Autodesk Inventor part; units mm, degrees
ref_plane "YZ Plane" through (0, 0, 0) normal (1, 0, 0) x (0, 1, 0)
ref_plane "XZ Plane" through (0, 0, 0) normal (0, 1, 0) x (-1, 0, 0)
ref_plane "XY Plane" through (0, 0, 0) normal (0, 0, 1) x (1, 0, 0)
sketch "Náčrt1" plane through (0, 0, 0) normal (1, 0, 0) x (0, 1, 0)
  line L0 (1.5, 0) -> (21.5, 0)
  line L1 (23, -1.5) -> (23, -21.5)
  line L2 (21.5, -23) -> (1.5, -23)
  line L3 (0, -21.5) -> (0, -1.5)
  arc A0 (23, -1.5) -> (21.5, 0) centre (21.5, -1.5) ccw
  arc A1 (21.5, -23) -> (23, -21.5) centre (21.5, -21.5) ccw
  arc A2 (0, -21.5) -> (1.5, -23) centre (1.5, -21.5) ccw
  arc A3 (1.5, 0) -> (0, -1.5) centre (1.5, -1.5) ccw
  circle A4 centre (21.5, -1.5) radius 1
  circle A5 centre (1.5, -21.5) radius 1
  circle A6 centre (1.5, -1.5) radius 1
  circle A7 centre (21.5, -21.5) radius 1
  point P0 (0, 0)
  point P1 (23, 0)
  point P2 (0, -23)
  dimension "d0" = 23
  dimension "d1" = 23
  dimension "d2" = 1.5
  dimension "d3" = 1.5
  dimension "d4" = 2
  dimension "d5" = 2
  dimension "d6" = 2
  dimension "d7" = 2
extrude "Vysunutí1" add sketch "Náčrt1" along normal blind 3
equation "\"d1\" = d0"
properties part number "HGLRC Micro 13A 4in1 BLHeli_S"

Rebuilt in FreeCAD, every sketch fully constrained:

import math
import FreeCAD as App
import Part
import Sketcher

V = App.Vector
Q = App.Units.Quantity

doc = App.newDocument("Part")
body = doc.addObject("PartDesign::Body", "Body")

# Sketch on YZ plane
sketch1 = doc.addObject("Sketcher::SketchObject", "Sketch")
body.addObject(sketch1)
sketch1.AttachmentSupport = (doc.YZ_Plane, [""])
sketch1.MapMode = "FlatFace"
sketch1.addGeometry(Part.LineSegment(V(21.5, 0, 0), V(1.5, 0, 0)), False)
sketch1.addGeometry(Part.ArcOfCircle(Part.Circle(V(1.5, -1.5, 0), V(0, 0, 1), 1.5), math.radians(90), math.radians(180)), False)
sketch1.addGeometry(Part.LineSegment(V(0, -1.5, 0), V(0, -21.5, 0)), False)
sketch1.addGeometry(Part.ArcOfCircle(Part.Circle(V(1.5, -21.5, 0), V(0, 0, 1), 1.5), math.radians(180), math.radians(270)), False)
sketch1.addGeometry(Part.LineSegment(V(1.5, -23, 0), V(21.5, -23, 0)), False)
sketch1.addGeometry(Part.ArcOfCircle(Part.Circle(V(21.5, -21.5, 0), V(0, 0, 1), 1.5), math.radians(-90), math.radians(0)), False)
sketch1.addGeometry(Part.LineSegment(V(23, -21.5, 0), V(23, -1.5, 0)), False)
sketch1.addGeometry(Part.ArcOfCircle(Part.Circle(V(21.5, -1.5, 0), V(0, 0, 1), 1.5), math.radians(0), math.radians(90)), False)
sketch1.addGeometry(Part.Circle(V(1.5, -21.5, 0), V(0, 0, 1), 1), False)
sketch1.addGeometry(Part.Circle(V(21.5, -21.5, 0), V(0, 0, 1), 1), False)
sketch1.addGeometry(Part.Circle(V(1.5, -1.5, 0), V(0, 0, 1), 1), False)
sketch1.addGeometry(Part.Circle(V(21.5, -1.5, 0), V(0, 0, 1), 1), False)
sketch1.addConstraint(Sketcher.Constraint("Tangent", 0, 2, 1, 1))
sketch1.addConstraint(Sketcher.Constraint("Tangent", 1, 2, 2, 1))
sketch1.addConstraint(Sketcher.Constraint("Tangent", 2, 2, 3, 1))
sketch1.addConstraint(Sketcher.Constraint("Tangent", 3, 2, 4, 1))
sketch1.addConstraint(Sketcher.Constraint("Tangent", 4, 2, 5, 1))
sketch1.addConstraint(Sketcher.Constraint("Tangent", 5, 2, 6, 1))
sketch1.addConstraint(Sketcher.Constraint("Tangent", 6, 2, 7, 1))
sketch1.addConstraint(Sketcher.Constraint("Tangent", 7, 2, 0, 1))
sketch1.addConstraint(Sketcher.Constraint("Horizontal", 0))
sketch1.addConstraint(Sketcher.Constraint("Vertical", 2))
sketch1.addConstraint(Sketcher.Constraint("Horizontal", 4))
sketch1.addConstraint(Sketcher.Constraint("Vertical", 6))
sketch1.addConstraint(Sketcher.Constraint("Coincident", 8, 3, 3, 3))
sketch1.addConstraint(Sketcher.Constraint("Coincident", 9, 3, 5, 3))
sketch1.addConstraint(Sketcher.Constraint("Coincident", 10, 3, 1, 3))
sketch1.addConstraint(Sketcher.Constraint("Coincident", 11, 3, 7, 3))
sketch1.addConstraint(Sketcher.Constraint("Equal", 1, 3))
sketch1.addConstraint(Sketcher.Constraint("Equal", 3, 5))
sketch1.addConstraint(Sketcher.Constraint("Equal", 5, 7))
sketch1.addConstraint(Sketcher.Constraint("Equal", 8, 9))
sketch1.addConstraint(Sketcher.Constraint("Equal", 9, 10))
sketch1.addConstraint(Sketcher.Constraint("Equal", 10, 11))
sketch1.addConstraint(Sketcher.Constraint("PointOnObject", 0, 2, -1))
sketch1.addConstraint(Sketcher.Constraint("PointOnObject", 1, 2, -2))
sketch1.addConstraint(Sketcher.Constraint("Equal", 4, 2))
sketch1.addConstraint(Sketcher.Constraint("Diameter", 8, Q("2 mm")))
sketch1.addConstraint(Sketcher.Constraint("Radius", 1, Q("1.5 mm")))
sketch1.addConstraint(Sketcher.Constraint("DistanceY", 3, 2, -1, 1, Q("23 mm")))
pad1 = doc.addObject("PartDesign::Pad", "Pad")
body.addObject(pad1)
pad1.Profile = sketch1
pad1.Length = 3

doc.recompute()
